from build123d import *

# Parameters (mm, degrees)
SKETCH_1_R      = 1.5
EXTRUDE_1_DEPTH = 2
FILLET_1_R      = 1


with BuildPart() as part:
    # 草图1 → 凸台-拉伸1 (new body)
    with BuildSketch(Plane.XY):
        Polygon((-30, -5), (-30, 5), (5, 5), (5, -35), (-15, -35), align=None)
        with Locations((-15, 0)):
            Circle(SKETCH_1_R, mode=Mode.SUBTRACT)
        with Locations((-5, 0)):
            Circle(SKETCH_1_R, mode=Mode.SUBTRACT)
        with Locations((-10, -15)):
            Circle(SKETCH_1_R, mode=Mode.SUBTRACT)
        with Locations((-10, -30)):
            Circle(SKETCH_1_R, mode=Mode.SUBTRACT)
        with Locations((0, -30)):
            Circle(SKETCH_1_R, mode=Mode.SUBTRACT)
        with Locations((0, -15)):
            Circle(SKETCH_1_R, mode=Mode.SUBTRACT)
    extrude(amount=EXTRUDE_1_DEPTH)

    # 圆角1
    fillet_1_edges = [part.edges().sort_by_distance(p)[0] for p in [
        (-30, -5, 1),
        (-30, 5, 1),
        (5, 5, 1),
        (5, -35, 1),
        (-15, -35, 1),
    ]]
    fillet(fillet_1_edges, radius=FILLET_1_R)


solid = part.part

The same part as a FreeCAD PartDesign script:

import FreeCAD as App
import Part
import Sketcher
from FreeCAD import Vector
Q = App.Units.Quantity


def edges_at(feature, points):
    """Names of the edges that pass closest to the given points."""
    edges = feature.Shape.Edges
    near = lambda p: min(range(len(edges)), key=lambda i: edges[i].distToShape(Part.Vertex(*p))[0])
    return sorted({f"Edge{near(p) + 1}" for p in points})

doc = App.newDocument("Part")
body = doc.addObject("PartDesign::Body", "Body")

# Sketch on XY plane
sketch1 = body.newObject("Sketcher::SketchObject", "Sketch")
sketch1.AttachmentSupport = (doc.getObject("XY_Plane"), [""])
sketch1.MapMode = "FlatFace"
sketch1.addGeometry([
    Part.LineSegment(Vector(-30, 5, 0), Vector(-30, -5, 0)),  # 0
    Part.LineSegment(Vector(-30, -5, 0), Vector(-15, -35, 0)),  # 1
    Part.LineSegment(Vector(-15, -35, 0), Vector(5, -35, 0)),  # 2
    Part.LineSegment(Vector(5, -35, 0), Vector(5, 5, 0)),  # 3
    Part.LineSegment(Vector(5, 5, 0), Vector(-30, 5, 0)),  # 4
    Part.Circle(Vector(0, -30, 0), Vector(0, 0, 1), 1.5),  # 5
    Part.Circle(Vector(-10, -30, 0), Vector(0, 0, 1), 1.5),  # 6
    Part.Circle(Vector(0, -15, 0), Vector(0, 0, 1), 1.5),  # 7
    Part.Circle(Vector(-5, 0, 0), Vector(0, 0, 1), 1.5),  # 8
    Part.Circle(Vector(-10, -15, 0), Vector(0, 0, 1), 1.5),  # 9
    Part.Circle(Vector(-15, 0, 0), Vector(0, 0, 1), 1.5),  # 10
], False)
sketch1.addConstraint([
    Sketcher.Constraint("Coincident", 0, 2, 1, 1),
    Sketcher.Constraint("Coincident", 1, 2, 2, 1),
    Sketcher.Constraint("Coincident", 2, 2, 3, 1),
    Sketcher.Constraint("Coincident", 3, 2, 4, 1),
    Sketcher.Constraint("Coincident", 4, 2, 0, 1),
    Sketcher.Constraint("Vertical", 0),
    Sketcher.Constraint("Horizontal", 2),
    Sketcher.Constraint("Vertical", 3),
    Sketcher.Constraint("Horizontal", 4),
    Sketcher.Constraint("Equal", 5, 6),
    Sketcher.Constraint("Equal", 6, 7),
    Sketcher.Constraint("Equal", 7, 8),
    Sketcher.Constraint("Equal", 8, 9),
    Sketcher.Constraint("Equal", 9, 10),
    Sketcher.Constraint("PointOnObject", 5, 3, -2),
    Sketcher.Constraint("PointOnObject", 7, 3, -2),
    Sketcher.Constraint("PointOnObject", 8, 3, -1),
    Sketcher.Constraint("PointOnObject", 10, 3, -1),
    Sketcher.Constraint("Horizontal", 5, 3, 6, 3),
    Sketcher.Constraint("Horizontal", 7, 3, 9, 3),
    Sketcher.Constraint("Vertical", 6, 3, 9, 3),
    Sketcher.Constraint("Vertical", 10, 3, 1, 2),
    Sketcher.Constraint("Diameter", 5, Q("3 mm")),
    Sketcher.Constraint("DistanceX", 2, 1, 2, 2, Q("20 mm")),
    Sketcher.Constraint("DistanceX", 4, 2, 4, 1, Q("35 mm")),
    Sketcher.Constraint("DistanceY", 0, 2, 0, 1, Q("10 mm")),
    Sketcher.Constraint("DistanceY", 3, 1, 3, 2, Q("40 mm")),
    Sketcher.Constraint("DistanceY", 5, 3, -1, 1, Q("30 mm")),
    Sketcher.Constraint("DistanceX", 6, 3, -1, 1, Q("10 mm")),
    Sketcher.Constraint("DistanceY", 7, 3, -1, 1, Q("15 mm")),
    Sketcher.Constraint("DistanceX", 8, 3, -1, 1, Q("5 mm")),
    Sketcher.Constraint("DistanceX", 10, 3, -1, 1, Q("15 mm")),
    Sketcher.Constraint("DistanceY", 0, 2, -1, 1, Q("5 mm")),
])
pad1 = body.newObject("PartDesign::Pad", "Pad")
pad1.Profile = sketch1
pad1.Length = 2
doc.recompute()

fillet = body.newObject("PartDesign::Fillet", "Fillet")
fillet.Base = (pad1, edges_at(pad1, [
    (-30, -5, 1),
    (-30, 5, 1),
    (5, 5, 1),
    (5, -35, 1),
    (-15, -35, 1),
]))
fillet.Radius = 1

doc.recompute()
